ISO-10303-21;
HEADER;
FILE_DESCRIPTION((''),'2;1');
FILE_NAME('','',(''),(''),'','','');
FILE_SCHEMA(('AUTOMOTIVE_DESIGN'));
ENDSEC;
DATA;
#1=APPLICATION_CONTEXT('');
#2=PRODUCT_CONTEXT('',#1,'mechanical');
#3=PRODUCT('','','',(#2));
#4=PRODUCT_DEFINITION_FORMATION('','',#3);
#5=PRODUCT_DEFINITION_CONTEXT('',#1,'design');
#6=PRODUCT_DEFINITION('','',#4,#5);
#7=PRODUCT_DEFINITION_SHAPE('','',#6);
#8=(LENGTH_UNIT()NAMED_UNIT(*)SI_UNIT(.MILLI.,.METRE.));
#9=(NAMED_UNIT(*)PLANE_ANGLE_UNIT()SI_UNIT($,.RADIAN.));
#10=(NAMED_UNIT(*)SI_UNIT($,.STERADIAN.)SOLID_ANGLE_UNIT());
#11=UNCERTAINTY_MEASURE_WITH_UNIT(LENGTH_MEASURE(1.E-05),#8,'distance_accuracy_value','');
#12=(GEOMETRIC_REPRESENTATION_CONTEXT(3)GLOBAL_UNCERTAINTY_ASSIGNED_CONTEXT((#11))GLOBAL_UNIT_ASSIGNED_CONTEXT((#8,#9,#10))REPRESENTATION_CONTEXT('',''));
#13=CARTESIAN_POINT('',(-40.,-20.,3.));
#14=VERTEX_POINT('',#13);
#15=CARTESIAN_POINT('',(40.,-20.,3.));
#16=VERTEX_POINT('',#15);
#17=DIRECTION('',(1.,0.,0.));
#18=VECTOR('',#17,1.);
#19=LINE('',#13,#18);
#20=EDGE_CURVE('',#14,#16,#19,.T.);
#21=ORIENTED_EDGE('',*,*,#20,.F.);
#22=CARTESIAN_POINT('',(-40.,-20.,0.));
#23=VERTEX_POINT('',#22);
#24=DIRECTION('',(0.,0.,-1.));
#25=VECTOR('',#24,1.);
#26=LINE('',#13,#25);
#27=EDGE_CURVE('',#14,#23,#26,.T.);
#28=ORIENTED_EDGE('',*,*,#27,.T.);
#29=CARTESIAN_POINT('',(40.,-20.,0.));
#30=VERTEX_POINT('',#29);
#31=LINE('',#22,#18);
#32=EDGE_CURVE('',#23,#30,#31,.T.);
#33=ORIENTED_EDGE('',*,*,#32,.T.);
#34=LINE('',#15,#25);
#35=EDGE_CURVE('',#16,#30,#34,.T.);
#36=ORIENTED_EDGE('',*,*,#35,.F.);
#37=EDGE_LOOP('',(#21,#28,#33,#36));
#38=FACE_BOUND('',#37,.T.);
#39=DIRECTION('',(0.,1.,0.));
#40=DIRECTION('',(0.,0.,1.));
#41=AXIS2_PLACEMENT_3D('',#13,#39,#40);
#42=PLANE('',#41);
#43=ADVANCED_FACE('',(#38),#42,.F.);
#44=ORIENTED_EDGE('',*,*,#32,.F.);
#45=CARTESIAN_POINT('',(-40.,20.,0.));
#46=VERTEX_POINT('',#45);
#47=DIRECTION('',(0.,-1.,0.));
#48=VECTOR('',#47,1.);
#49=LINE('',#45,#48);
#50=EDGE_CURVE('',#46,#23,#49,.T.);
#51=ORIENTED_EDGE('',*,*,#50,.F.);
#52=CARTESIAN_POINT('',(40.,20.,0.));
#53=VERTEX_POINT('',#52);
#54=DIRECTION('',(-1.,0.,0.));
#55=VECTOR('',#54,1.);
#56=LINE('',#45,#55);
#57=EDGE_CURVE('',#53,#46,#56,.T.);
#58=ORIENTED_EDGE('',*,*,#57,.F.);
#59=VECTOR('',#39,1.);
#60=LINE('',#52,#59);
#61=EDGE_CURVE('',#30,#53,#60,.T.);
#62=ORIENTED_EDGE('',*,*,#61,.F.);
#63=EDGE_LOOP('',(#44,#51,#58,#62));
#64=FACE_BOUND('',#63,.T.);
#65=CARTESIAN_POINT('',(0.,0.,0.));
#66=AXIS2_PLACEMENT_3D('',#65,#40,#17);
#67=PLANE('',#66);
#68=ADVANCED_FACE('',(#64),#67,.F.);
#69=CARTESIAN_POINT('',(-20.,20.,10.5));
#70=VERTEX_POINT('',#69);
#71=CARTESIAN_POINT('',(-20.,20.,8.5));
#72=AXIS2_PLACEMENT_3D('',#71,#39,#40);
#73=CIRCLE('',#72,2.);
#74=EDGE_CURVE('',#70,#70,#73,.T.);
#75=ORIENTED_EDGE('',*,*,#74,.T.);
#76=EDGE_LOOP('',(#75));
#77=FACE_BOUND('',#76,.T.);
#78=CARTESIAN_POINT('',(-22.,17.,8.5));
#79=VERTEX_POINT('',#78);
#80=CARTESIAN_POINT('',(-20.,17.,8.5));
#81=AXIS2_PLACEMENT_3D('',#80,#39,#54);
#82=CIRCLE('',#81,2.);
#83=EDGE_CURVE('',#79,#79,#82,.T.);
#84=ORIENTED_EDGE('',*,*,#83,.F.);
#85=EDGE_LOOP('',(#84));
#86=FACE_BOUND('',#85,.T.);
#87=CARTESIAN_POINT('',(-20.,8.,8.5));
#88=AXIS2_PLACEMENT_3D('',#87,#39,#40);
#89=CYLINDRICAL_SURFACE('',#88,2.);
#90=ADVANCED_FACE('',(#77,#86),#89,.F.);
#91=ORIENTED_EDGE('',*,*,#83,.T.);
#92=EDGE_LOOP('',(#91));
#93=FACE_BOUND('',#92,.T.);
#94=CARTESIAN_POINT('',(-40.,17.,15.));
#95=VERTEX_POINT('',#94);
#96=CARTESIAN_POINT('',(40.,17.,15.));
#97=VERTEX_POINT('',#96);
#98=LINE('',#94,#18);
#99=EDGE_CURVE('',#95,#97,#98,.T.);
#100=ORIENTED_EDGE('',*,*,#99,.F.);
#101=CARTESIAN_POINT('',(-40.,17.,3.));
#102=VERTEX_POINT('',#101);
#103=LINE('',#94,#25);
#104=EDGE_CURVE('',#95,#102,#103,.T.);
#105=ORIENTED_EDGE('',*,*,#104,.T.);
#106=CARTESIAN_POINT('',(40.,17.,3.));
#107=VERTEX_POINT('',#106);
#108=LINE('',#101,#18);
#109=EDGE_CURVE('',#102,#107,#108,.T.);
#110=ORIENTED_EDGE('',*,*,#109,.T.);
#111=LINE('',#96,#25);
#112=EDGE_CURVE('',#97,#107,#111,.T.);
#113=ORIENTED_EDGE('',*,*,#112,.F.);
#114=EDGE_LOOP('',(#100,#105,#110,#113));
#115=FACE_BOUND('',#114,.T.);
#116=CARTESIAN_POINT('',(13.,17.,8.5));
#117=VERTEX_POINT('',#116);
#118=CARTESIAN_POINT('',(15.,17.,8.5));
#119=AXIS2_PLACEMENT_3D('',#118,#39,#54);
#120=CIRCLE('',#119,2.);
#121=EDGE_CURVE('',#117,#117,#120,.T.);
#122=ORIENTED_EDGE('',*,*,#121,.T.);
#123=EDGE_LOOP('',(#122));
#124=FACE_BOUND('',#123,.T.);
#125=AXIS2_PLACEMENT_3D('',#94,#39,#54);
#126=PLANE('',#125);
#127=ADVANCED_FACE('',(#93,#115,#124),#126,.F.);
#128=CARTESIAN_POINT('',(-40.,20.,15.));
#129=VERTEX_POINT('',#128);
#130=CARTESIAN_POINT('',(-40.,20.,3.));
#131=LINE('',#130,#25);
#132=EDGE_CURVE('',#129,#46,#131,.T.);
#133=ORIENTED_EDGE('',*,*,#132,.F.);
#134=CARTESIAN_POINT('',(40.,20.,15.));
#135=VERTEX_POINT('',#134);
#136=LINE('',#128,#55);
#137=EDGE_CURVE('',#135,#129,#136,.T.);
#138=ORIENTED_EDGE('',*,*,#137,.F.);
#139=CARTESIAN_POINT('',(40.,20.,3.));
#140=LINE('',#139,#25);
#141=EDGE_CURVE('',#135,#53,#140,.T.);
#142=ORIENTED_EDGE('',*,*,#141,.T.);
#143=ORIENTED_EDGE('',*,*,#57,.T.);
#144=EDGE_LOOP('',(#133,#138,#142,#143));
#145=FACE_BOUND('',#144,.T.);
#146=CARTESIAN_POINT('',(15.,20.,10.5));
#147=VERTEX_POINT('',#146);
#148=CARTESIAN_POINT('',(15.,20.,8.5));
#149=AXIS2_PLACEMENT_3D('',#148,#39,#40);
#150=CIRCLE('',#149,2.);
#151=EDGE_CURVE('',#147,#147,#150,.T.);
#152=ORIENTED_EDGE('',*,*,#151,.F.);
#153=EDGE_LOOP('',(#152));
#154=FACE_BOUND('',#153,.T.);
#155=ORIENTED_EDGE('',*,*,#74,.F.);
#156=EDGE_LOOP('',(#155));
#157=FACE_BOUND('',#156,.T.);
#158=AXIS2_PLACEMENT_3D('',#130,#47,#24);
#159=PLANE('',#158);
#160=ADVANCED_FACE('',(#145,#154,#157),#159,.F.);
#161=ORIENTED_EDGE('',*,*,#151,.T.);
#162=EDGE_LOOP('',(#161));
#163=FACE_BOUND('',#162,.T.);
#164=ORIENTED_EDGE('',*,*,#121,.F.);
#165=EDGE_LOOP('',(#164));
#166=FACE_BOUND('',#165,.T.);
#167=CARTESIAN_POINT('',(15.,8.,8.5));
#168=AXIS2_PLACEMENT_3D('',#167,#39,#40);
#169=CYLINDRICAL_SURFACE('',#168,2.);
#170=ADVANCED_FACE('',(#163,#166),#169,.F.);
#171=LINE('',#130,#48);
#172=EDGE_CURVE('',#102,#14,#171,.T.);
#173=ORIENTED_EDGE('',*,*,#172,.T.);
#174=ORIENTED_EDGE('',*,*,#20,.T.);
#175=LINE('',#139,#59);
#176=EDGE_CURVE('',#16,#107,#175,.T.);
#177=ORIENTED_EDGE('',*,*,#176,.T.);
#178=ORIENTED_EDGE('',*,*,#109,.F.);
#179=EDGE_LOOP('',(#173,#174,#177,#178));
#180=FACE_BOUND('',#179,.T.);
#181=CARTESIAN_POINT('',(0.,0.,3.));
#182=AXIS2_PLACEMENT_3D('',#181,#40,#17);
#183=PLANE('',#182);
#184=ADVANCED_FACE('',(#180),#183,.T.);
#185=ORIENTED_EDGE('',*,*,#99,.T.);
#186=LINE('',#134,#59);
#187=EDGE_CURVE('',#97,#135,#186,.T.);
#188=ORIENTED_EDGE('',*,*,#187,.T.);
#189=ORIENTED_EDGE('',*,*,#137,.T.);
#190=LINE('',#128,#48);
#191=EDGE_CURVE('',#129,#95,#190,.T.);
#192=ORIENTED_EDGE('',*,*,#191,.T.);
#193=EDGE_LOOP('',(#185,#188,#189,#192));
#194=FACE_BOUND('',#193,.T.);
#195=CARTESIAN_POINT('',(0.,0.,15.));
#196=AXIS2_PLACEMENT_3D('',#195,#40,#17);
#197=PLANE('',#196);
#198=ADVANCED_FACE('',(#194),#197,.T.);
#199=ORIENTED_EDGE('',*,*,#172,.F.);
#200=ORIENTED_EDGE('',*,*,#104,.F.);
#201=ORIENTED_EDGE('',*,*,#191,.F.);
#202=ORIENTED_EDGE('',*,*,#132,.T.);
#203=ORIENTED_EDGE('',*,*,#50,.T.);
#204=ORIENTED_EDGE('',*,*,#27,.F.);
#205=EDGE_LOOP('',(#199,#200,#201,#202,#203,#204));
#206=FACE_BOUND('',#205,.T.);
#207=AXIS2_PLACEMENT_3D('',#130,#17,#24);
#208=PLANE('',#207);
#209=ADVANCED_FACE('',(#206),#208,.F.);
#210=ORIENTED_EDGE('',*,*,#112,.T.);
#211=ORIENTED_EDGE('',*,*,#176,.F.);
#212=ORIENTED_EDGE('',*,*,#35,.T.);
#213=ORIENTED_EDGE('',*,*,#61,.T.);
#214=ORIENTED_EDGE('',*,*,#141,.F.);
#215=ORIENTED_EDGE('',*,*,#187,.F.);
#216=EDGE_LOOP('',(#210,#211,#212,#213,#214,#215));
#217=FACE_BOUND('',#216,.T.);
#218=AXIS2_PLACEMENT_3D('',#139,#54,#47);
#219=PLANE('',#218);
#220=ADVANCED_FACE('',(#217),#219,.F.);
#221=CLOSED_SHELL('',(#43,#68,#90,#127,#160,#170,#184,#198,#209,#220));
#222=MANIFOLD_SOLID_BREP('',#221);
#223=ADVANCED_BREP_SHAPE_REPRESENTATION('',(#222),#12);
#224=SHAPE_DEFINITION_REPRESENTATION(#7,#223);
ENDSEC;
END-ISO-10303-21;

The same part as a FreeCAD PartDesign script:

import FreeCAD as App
import Part
import Sketcher

V = App.Vector


def add_polygon(sketch, points):
    """Adds a closed chain of lines whose ends are joined by coincident constraints."""
    first, n = sketch.GeometryCount, len(points)
    for a, b in zip(points, points[1:] + points[:1]):
        sketch.addGeometry(Part.LineSegment(App.Vector(*a, 0), App.Vector(*b, 0)), False)
    for i in range(n):
        sketch.addConstraint(Sketcher.Constraint("Coincident", first + i, 2, first + (i + 1) % n, 1))

doc = App.newDocument("Part")
params = doc.addObject("Spreadsheet::Sheet", "Params")
for row, (alias, value) in enumerate([
    ("sketch1_width", "80 mm"),
    ("sketch1_height", "40 mm"),
    ("pad1_length", "3 mm"),
    ("sketch2_width", "80 mm"),
    ("sketch2_height", "3 mm"),
    ("pad2_length", "12 mm"),
    ("sketch3_diameter", "4 mm"),
    ("pocket1_length", "12 mm"),
], start=1):
    params.set(f"A{row}", alias)
    params.set(f"B{row}", "=" + value)
    params.setAlias(f"B{row}", alias)

body = doc.addObject("PartDesign::Body", "Body")

# Sketch on XY plane
sketch1 = doc.addObject("Sketcher::SketchObject", "Sketch")
body.addObject(sketch1)
sketch1.AttachmentSupport = (doc.XY_Plane, [""])
sketch1.MapMode = "FlatFace"
add_polygon(sketch1, [(-40, 20), (-40, -20), (40, -20), (40, 20)])  # lines 0-3
sketch1.addConstraint([
    Sketcher.Constraint("Vertical", 0),
    Sketcher.Constraint("Horizontal", 1),
    Sketcher.Constraint("Vertical", 2),
    Sketcher.Constraint("Horizontal", 3),
    Sketcher.Constraint("Symmetric", 0, 2, 2, 2, -1, 1),
    Sketcher.Constraint("DistanceX", 1, 1, 1, 2, 80.0),
    Sketcher.Constraint("DistanceY", 0, 2, 0, 1, 40.0),
])
sketch1.setExpression("Constraints[9]", "Params.sketch1_width")
sketch1.setExpression("Constraints[10]", "Params.sketch1_height")
pad1 = doc.addObject("PartDesign::Pad", "Pad")
body.addObject(pad1)
pad1.Profile = sketch1
pad1.setExpression("Length", "Params.pad1_length")

# Sketch on XY plane
sketch2 = doc.addObject("Sketcher::SketchObject", "Sketch001")
body.addObject(sketch2)
sketch2.AttachmentSupport = (doc.XY_Plane, [""])
sketch2.MapMode = "FlatFace"
sketch2.AttachmentOffset = App.Placement(V(0, 0, 3), App.Rotation())
add_polygon(sketch2, [(-40, 20), (-40, 17), (40, 17), (40, 20)])  # lines 0-3
sketch2.addConstraint([
    Sketcher.Constraint("Vertical", 0),
    Sketcher.Constraint("Horizontal", 1),
    Sketcher.Constraint("Vertical", 2),
    Sketcher.Constraint("Horizontal", 3),
    Sketcher.Constraint("DistanceX", 1, 1, 1, 2, 80.0),
    Sketcher.Constraint("DistanceY", 0, 2, 0, 1, 3.0),
    Sketcher.Constraint("DistanceX", 0, 2, -1, 1, 40.0),
    Sketcher.Constraint("DistanceY", -1, 1, 0, 2, 17.0),
])
sketch2.setExpression("Constraints[8]", "Params.sketch2_width")
sketch2.setExpression("Constraints[9]", "Params.sketch2_height")
pad2 = doc.addObject("PartDesign::Pad", "Pad001")
body.addObject(pad2)
pad2.Profile = sketch2
pad2.setExpression("Length", "Params.pad2_length")

# Sketch on XZ plane
sketch3 = doc.addObject("Sketcher::SketchObject", "Sketch002")
body.addObject(sketch3)
sketch3.AttachmentSupport = (doc.XZ_Plane, [""])
sketch3.MapMode = "FlatFace"
sketch3.AttachmentOffset = App.Placement(V(0, 0, -20), App.Rotation())
sketch3.addGeometry([
    Part.Circle(V(15, 8.5, 0), V(0, 0, 1), 2),
    Part.Circle(V(-20, 8.5, 0), V(0, 0, 1), 2),
], False)
sketch3.addConstraint([
    Sketcher.Constraint("Equal", 0, 1),
    Sketcher.Constraint("Horizontal", 0, 3, 1, 3),
    Sketcher.Constraint("Diameter", 0, 4.0),
    Sketcher.Constraint("DistanceX", -1, 1, 0, 3, 15.0),
    Sketcher.Constraint("DistanceX", 1, 3, -1, 1, 20.0),
    Sketcher.Constraint("DistanceY", -1, 1, 0, 3, 8.5),
])
sketch3.setExpression("Constraints[2]", "Params.sketch3_diameter")
pocket1 = doc.addObject("PartDesign::Pocket", "Pocket")
body.addObject(pocket1)
pocket1.Profile = sketch3
pocket1.setExpression("Length", "Params.pocket1_length")
pocket1.Reversed = True

doc.recompute()
